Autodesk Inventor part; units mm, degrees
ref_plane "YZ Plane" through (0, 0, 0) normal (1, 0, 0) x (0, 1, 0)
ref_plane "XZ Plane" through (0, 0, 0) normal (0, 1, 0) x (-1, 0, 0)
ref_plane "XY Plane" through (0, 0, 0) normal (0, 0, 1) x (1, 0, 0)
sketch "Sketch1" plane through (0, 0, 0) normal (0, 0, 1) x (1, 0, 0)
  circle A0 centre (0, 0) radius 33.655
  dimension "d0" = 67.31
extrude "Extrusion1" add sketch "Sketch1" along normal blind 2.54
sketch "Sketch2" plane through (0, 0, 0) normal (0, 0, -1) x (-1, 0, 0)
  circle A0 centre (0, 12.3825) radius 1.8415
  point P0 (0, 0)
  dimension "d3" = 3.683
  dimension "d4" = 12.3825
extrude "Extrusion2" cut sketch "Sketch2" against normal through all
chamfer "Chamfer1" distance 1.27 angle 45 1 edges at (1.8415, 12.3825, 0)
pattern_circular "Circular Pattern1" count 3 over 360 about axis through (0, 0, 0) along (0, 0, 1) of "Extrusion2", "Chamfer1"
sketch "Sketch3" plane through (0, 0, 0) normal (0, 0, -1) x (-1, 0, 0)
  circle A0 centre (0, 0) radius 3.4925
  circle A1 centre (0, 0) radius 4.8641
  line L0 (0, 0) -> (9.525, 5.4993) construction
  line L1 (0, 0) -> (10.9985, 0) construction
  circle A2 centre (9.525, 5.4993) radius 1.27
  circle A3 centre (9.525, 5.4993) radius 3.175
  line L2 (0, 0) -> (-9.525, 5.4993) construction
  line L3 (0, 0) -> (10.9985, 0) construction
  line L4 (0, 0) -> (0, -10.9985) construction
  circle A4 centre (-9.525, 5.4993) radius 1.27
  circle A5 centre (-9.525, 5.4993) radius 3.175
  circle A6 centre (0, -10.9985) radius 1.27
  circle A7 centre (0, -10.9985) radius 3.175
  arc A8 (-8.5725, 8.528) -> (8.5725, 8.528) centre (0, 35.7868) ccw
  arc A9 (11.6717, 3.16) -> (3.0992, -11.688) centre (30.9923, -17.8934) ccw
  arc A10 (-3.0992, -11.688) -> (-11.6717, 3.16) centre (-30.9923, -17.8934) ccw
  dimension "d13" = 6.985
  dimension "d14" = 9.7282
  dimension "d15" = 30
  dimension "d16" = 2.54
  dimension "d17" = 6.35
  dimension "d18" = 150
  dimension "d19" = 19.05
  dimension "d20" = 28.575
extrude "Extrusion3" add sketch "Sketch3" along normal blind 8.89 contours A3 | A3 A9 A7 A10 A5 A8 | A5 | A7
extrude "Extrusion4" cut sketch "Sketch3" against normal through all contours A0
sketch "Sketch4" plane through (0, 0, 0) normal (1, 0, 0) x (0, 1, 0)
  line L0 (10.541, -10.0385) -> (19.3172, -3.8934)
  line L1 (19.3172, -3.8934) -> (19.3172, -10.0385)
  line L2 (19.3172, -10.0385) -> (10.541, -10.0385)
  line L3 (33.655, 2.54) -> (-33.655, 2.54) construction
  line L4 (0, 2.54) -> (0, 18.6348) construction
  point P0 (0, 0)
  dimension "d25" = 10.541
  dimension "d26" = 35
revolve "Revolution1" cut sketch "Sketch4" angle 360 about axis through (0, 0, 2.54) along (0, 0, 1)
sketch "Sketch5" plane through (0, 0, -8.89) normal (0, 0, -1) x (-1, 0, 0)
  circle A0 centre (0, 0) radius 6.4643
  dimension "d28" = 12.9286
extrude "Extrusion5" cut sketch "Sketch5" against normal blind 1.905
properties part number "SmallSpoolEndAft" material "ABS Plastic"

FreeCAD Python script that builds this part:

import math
import FreeCAD as App
import Part
import Sketcher
from FreeCAD import Vector
Q = App.Units.Quantity


def edges_at(feature, points):
    """Names of the edges that pass closest to the given points."""
    edges = feature.Shape.Edges
    near = lambda p: min(range(len(edges)), key=lambda i: edges[i].distToShape(Part.Vertex(*p))[0])
    return sorted({f"Edge{near(p) + 1}" for p in points})


def add_polygon(sketch, points):
    """Adds a closed chain of lines whose ends are joined by coincident constraints."""
    first, n = sketch.GeometryCount, len(points)
    for a, b in zip(points, points[1:] + points[:1]):
        sketch.addGeometry(Part.LineSegment(App.Vector(*a, 0), App.Vector(*b, 0)), False)
    for i in range(n):
        sketch.addConstraint(Sketcher.Constraint("Coincident", first + i, 2, first + (i + 1) % n, 1))

doc = App.newDocument("Part")
body = doc.addObject("PartDesign::Body", "Body")

# Sketch on XY plane
sketch1 = body.newObject("Sketcher::SketchObject", "Sketch")
sketch1.AttachmentSupport = (doc.getObject("XY_Plane"), [""])
sketch1.MapMode = "FlatFace"
sketch1.addGeometry(Part.Circle(Vector(0, 0, 0), Vector(0, 0, 1), 34), False)
sketch1.addConstraint([
    Sketcher.Constraint("Coincident", 0, 3, -1, 1),
    Sketcher.Constraint("Diameter", 0, Q("2.65 in")),
])
pad1 = body.newObject("PartDesign::Pad", "Pad")
pad1.Profile = sketch1
pad1.Length = Q("0.1 in")

# Sketch on XY plane
sketch2 = body.newObject("Sketcher::SketchObject", "Sketch001")
sketch2.AttachmentSupport = (doc.getObject("XY_Plane"), [""])
sketch2.MapMode = "FlatFace"
sketch2.addGeometry(Part.Circle(Vector(0, 12.4, 0), Vector(0, 0, 1), 1.8), False)
sketch2.addConstraint([
    Sketcher.Constraint("PointOnObject", 0, 3, -2),
    Sketcher.Constraint("Diameter", 0, Q("0.145 in")),
    Sketcher.Constraint("DistanceY", -1, 1, 0, 3, Q("0.4875 in")),
])
pocket1 = body.newObject("PartDesign::Pocket", "Pocket")
pocket1.Profile = sketch2
pocket1.Type = "ThroughAll"
pocket1.Reversed = True
doc.recompute()

chamfer = body.newObject("PartDesign::Chamfer", "Chamfer")
chamfer.Base = (pocket1, edges_at(pocket1, [(1.841, 12.383, 0)]))
chamfer.Size = Q("0.05 in")
doc.recompute()

polarpattern = body.newObject("PartDesign::PolarPattern", "PolarPattern")
polarpattern.Originals = [pocket1, chamfer]
polarpattern.Axis = (doc.getObject("Z_Axis"), [""])
polarpattern.Angle = 360
polarpattern.Occurrences = 3
body.Tip = polarpattern

# Sketch on XY plane
sketch3 = body.newObject("Sketcher::SketchObject", "Sketch002")
sketch3.AttachmentSupport = (doc.getObject("XY_Plane"), [""])
sketch3.MapMode = "FlatFace"
sketch3.addGeometry([
    Part.ArcOfCircle(Part.Circle(Vector(-9.5, 5.5, 0), Vector(0, 0, 1), 3.2), math.radians(73), math.radians(227)),  # 0
    Part.ArcOfCircle(Part.Circle(Vector(0, 35.8, 0), Vector(0, 0, 1), 28.6), math.radians(-107), math.radians(-73)),  # 1
    Part.ArcOfCircle(Part.Circle(Vector(9.5, 5.5, 0), Vector(0, 0, 1), 3.2), math.radians(-47), math.radians(107)),  # 2
    Part.ArcOfCircle(Part.Circle(Vector(31, -17.9, 0), Vector(0, 0, 1), 28.6), math.radians(133), math.radians(167)),  # 3
    Part.ArcOfCircle(Part.Circle(Vector(0, -11, 0), Vector(0, 0, 1), 3.2), math.radians(-167), math.radians(-13)),  # 4
    Part.ArcOfCircle(Part.Circle(Vector(-31, -17.9, 0), Vector(0, 0, 1), 28.6), math.radians(13), math.radians(47)),  # 5
    Part.Circle(Vector(-9.5, 5.5, 0), Vector(0, 0, 1), 1.3),  # 6
    Part.Circle(Vector(0, 0, 0), Vector(0, 0, 1), 4.9),  # 7
    Part.Circle(Vector(0, -11, 0), Vector(0, 0, 1), 1.3),  # 8
    Part.Circle(Vector(9.5, 5.5, 0), Vector(0, 0, 1), 1.3),  # 9
], False)
sketch3.addConstraint([
    Sketcher.Constraint("Tangent", 0, 1, 1, 1),
    Sketcher.Constraint("Tangent", 1, 2, 2, 2),
    Sketcher.Constraint("Tangent", 2, 1, 3, 1),
    Sketcher.Constraint("Tangent", 3, 2, 4, 2),
    Sketcher.Constraint("Tangent", 4, 1, 5, 1),
    Sketcher.Constraint("Tangent", 5, 2, 0, 2),
    Sketcher.Constraint("Coincident", 7, 3, -1, 1),
    Sketcher.Constraint("Coincident", 6, 3, 0, 3),
    Sketcher.Constraint("Coincident", 8, 3, 4, 3),
    Sketcher.Constraint("Coincident", 9, 3, 2, 3),
    Sketcher.Constraint("Equal", 0, 2),
    Sketcher.Constraint("Equal", 1, 3),
    Sketcher.Constraint("Equal", 2, 4),
    Sketcher.Constraint("Equal", 3, 5),
    Sketcher.Constraint("Equal", 6, 8),
    Sketcher.Constraint("Equal", 8, 9),
    Sketcher.Constraint("Symmetric", 0, 3, 2, 3, -2),
    Sketcher.Constraint("PointOnObject", 4, 3, -2),
    Sketcher.Constraint("Diameter", 6, Q("0.1 in")),
    Sketcher.Constraint("Diameter", 7, Q("0.383 in")),
    Sketcher.Constraint("Radius", 0, Q("0.125 in")),
    Sketcher.Constraint("Radius", 1, Q("1.125 in")),
    Sketcher.Constraint("DistanceX", 0, 3, 2, 3, Q("0.75 in")),
    Sketcher.Constraint("DistanceY", 4, 3, -1, 1, Q("0.433 in")),
    Sketcher.Constraint("DistanceY", -1, 1, 0, 3, Q("0.2165 in")),
])
pad2 = body.newObject("PartDesign::Pad", "Pad001")
pad2.Profile = sketch3
pad2.Length = Q("0.35 in")
pad2.Reversed = True

# Sketch on XY plane
sketch4 = body.newObject("Sketcher::SketchObject", "Sketch003")
sketch4.AttachmentSupport = (doc.getObject("XY_Plane"), [""])
sketch4.MapMode = "FlatFace"
sketch4.addGeometry(Part.Circle(Vector(0, 0, 0), Vector(0, 0, 1), 3.5), False)
sketch4.addConstraint([
    Sketcher.Constraint("Coincident", 0, 3, -1, 1),
    Sketcher.Constraint("Diameter", 0, Q("0.275 in")),
])
pocket2 = body.newObject("PartDesign::Pocket", "Pocket001")
pocket2.Profile = sketch4
pocket2.Type = "ThroughAll"
pocket2.Reversed = True

# Sketch on YZ plane
sketch5 = body.newObject("Sketcher::SketchObject", "Sketch004")
sketch5.AttachmentSupport = (doc.getObject("YZ_Plane"), [""])
sketch5.MapMode = "FlatFace"
add_polygon(sketch5, [(19, -4), (11, -10), (19, -10)])  # lines 0-2
sketch5.addConstraint([
    Sketcher.Constraint("Horizontal", 1),
    Sketcher.Constraint("Vertical", 2),
    Sketcher.Constraint("DistanceX", -1, 1, 0, 2, Q("0.415 in")),
    Sketcher.Constraint("Angle", 0, Q("-145.0003 deg")),
    Sketcher.Constraint("Distance", 0, Q("0.4218 in")),
    Sketcher.Constraint("DistanceY", 0, 2, -1, 1, Q("10.0385 mm")),
])
groove = body.newObject("PartDesign::Groove", "Groove")
groove.Profile = sketch5
groove.ReferenceAxis = (sketch5, ["V_Axis"])
groove.Angle = 360

# Sketch on XY plane
sketch6 = body.newObject("Sketcher::SketchObject", "Sketch005")
sketch6.AttachmentSupport = (doc.getObject("XY_Plane"), [""])
sketch6.MapMode = "FlatFace"
sketch6.AttachmentOffset = App.Placement(Vector(0, 0, -0.35 * 25.4), App.Rotation())
sketch6.addGeometry(Part.Circle(Vector(0, 0, 0), Vector(0, 0, 1), 6), False)
sketch6.addConstraint([
    Sketcher.Constraint("Coincident", 0, 3, -1, 1),
    Sketcher.Constraint("Diameter", 0, Q("0.509 in")),
])
pocket3 = body.newObject("PartDesign::Pocket", "Pocket002")
pocket3.Profile = sketch6
pocket3.Length = Q("0.075 in")
pocket3.Reversed = True

doc.recompute()
